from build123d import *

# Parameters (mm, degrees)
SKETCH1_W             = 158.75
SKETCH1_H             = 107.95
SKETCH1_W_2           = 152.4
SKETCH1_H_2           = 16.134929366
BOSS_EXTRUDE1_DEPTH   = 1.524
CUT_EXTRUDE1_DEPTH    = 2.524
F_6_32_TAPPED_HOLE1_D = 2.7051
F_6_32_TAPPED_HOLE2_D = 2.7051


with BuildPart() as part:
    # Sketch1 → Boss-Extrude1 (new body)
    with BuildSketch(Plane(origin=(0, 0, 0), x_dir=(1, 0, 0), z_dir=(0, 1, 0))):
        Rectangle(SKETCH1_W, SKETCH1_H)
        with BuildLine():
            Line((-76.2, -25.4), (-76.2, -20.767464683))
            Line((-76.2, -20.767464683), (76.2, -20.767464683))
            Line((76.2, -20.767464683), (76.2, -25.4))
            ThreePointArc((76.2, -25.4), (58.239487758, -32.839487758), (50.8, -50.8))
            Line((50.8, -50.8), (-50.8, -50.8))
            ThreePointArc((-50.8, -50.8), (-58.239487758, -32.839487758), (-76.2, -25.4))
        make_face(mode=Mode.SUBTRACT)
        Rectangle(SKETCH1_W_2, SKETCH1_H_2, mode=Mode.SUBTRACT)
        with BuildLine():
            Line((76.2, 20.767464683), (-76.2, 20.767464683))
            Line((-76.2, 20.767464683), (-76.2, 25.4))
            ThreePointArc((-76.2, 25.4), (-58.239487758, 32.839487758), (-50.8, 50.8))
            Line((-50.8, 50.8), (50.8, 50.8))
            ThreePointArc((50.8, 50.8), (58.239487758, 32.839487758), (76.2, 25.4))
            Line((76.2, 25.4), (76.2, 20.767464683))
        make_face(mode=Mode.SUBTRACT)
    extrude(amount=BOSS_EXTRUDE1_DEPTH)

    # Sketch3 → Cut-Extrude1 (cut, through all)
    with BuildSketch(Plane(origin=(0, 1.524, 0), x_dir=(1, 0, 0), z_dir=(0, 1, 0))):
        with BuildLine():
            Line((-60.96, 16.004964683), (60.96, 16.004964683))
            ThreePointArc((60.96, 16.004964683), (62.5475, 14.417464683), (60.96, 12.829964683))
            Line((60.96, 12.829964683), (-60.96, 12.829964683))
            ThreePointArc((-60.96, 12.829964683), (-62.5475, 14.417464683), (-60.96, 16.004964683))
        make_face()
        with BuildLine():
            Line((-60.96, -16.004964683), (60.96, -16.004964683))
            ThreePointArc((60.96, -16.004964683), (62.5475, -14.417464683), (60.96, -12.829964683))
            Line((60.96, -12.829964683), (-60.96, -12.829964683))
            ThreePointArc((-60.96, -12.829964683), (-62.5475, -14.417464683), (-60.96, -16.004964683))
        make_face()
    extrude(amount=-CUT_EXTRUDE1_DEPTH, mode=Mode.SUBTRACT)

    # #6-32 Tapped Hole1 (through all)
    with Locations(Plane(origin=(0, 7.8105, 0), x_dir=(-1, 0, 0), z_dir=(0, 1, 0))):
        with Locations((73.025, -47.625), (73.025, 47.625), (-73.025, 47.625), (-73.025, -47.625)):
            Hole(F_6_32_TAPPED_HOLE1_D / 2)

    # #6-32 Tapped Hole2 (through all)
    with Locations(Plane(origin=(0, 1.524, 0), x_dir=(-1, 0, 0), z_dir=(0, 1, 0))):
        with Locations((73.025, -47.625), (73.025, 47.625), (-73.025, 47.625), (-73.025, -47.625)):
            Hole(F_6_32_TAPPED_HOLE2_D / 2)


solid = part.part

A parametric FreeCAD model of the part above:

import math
import FreeCAD as App
import Part
import Sketcher
Q = App.Units.Quantity

doc = App.newDocument("Part")
body = doc.addObject("PartDesign::Body", "Body")

sketch1 = body.newObject("Sketcher::SketchObject", "Sketch")
sketch1.AttachmentSupport = (doc.getObject("XZ_Plane"), [""])
sketch1.MapMode = "FlatFace"
sketch1.addGeometry([
    Part.LineSegment(App.Vector(-79.4, -54, 0), App.Vector(-79.4, 54, 0)),
    Part.LineSegment(App.Vector(-79.4, 54, 0), App.Vector(79.4, 54, 0)),
    Part.LineSegment(App.Vector(79.4, 54, 0), App.Vector(79.4, -54, 0)),
    Part.LineSegment(App.Vector(79.4, -54, 0), App.Vector(-79.4, -54, 0)),
    Part.ArcOfCircle(Part.Circle(App.Vector(-76.2, 50.8, 0), App.Vector(0, 0, 1), 25.4), math.radians(-90), math.radians(0)),
    Part.LineSegment(App.Vector(-76.2, 25.4, 0), App.Vector(-76.2, 20.8, 0)),
    Part.LineSegment(App.Vector(-76.2, 20.8, 0), App.Vector(76.2, 20.8, 0)),
    Part.LineSegment(App.Vector(76.2, 20.8, 0), App.Vector(76.2, 25.4, 0)),
    Part.ArcOfCircle(Part.Circle(App.Vector(76.2, 50.8, 0), App.Vector(0, 0, 1), 25.4), math.radians(180), math.radians(270)),
    Part.LineSegment(App.Vector(50.8, 50.8, 0), App.Vector(-50.8, 50.8, 0)),
    Part.LineSegment(App.Vector(76.2, 8.1, 0), App.Vector(-76.2, 8.1, 0)),
    Part.LineSegment(App.Vector(-76.2, 8.1, 0), App.Vector(-76.2, -8.1, 0)),
    Part.LineSegment(App.Vector(-76.2, -8.1, 0), App.Vector(76.2, -8.1, 0)),
    Part.LineSegment(App.Vector(76.2, -8.1, 0), App.Vector(76.2, 8.1, 0)),
    Part.LineSegment(App.Vector(76.2, -25.4, 0), App.Vector(76.2, -20.8, 0)),
    Part.LineSegment(App.Vector(76.2, -20.8, 0), App.Vector(-76.2, -20.8, 0)),
    Part.LineSegment(App.Vector(-76.2, -20.8, 0), App.Vector(-76.2, -25.4, 0)),
    Part.ArcOfCircle(Part.Circle(App.Vector(-76.2, -50.8, 0), App.Vector(0, 0, 1), 25.4), math.radians(0), math.radians(90)),
    Part.LineSegment(App.Vector(-50.8, -50.8, 0), App.Vector(50.8, -50.8, 0)),
    Part.ArcOfCircle(Part.Circle(App.Vector(76.2, -50.8, 0), App.Vector(0, 0, 1), 25.4), math.radians(90), math.radians(180)),
], False)
sketch1.addConstraint([
    Sketcher.Constraint("Coincident", 0, 2, 1, 1),
    Sketcher.Constraint("Coincident", 1, 2, 2, 1),
    Sketcher.Constraint("Coincident", 2, 2, 3, 1),
    Sketcher.Constraint("Coincident", 3, 2, 0, 1),
    Sketcher.Constraint("Coincident", 4, 1, 5, 1),
    Sketcher.Constraint("Coincident", 5, 2, 6, 1),
    Sketcher.Constraint("Coincident", 6, 2, 7, 1),
    Sketcher.Constraint("Coincident", 7, 2, 8, 2),
    Sketcher.Constraint("Coincident", 8, 1, 9, 1),
    Sketcher.Constraint("Coincident", 9, 2, 4, 2),
    Sketcher.Constraint("Coincident", 10, 2, 11, 1),
    Sketcher.Constraint("Coincident", 11, 2, 12, 1),
    Sketcher.Constraint("Coincident", 12, 2, 13, 1),
    Sketcher.Constraint("Coincident", 13, 2, 10, 1),
    Sketcher.Constraint("Coincident", 14, 2, 15, 1),
    Sketcher.Constraint("Coincident", 15, 2, 16, 1),
    Sketcher.Constraint("Coincident", 16, 2, 17, 2),
    Sketcher.Constraint("Coincident", 17, 1, 18, 1),
    Sketcher.Constraint("Coincident", 18, 2, 19, 2),
    Sketcher.Constraint("Coincident", 19, 1, 14, 1),
    Sketcher.Constraint("Vertical", 0),
    Sketcher.Constraint("Horizontal", 1),
    Sketcher.Constraint("Vertical", 2),
    Sketcher.Constraint("Horizontal", 3),
    Sketcher.Constraint("Vertical", 5),
    Sketcher.Constraint("Horizontal", 6),
    Sketcher.Constraint("Vertical", 7),
    Sketcher.Constraint("Horizontal", 9),
    Sketcher.Constraint("Horizontal", 10),
    Sketcher.Constraint("Vertical", 11),
    Sketcher.Constraint("Horizontal", 12),
    Sketcher.Constraint("Vertical", 13),
    Sketcher.Constraint("Vertical", 14),
    Sketcher.Constraint("Horizontal", 15),
    Sketcher.Constraint("Vertical", 16),
    Sketcher.Constraint("Horizontal", 18),
    Sketcher.Constraint("Equal", 4, 8),
    Sketcher.Constraint("Equal", 8, 17),
    Sketcher.Constraint("Equal", 17, 19),
    Sketcher.Constraint("Symmetric", 8, 3, 17, 3, -1, 1),
    Sketcher.Constraint("Symmetric", 4, 3, 19, 3, -1, 1),
    Sketcher.Constraint("Symmetric", 0, 2, 2, 2, -1, 1),
    Sketcher.Constraint("Symmetric", 10, 2, 12, 2, -1, 1),
    Sketcher.Constraint("Symmetric", 5, 2, 14, 2, -1, 1),
    Sketcher.Constraint("Symmetric", 4, 3, 8, 3, -2),
    Sketcher.Constraint("Horizontal", 4, 3, 8, 1),
    Sketcher.Constraint("Horizontal", 19, 3, 17, 1),
    Sketcher.Constraint("Vertical", 17, 3, 4, 1),
    Sketcher.Constraint("Vertical", 19, 3, 6, 2),
    Sketcher.Constraint("Vertical", 5, 2, 10, 2),
    Sketcher.Constraint("Vertical", 11, 2, 15, 2),
    Sketcher.Constraint("Radius", 4, Q("1 in")),
    Sketcher.Constraint("DistanceX", 6, 1, 6, 2, Q("6 in")),
    Sketcher.Constraint("DistanceY", -1, 1, 4, 3, Q("2 in")),
    Sketcher.Constraint("DistanceX", 1, 1, 1, 2, Q("6.25 in")),
    Sketcher.Constraint("DistanceY", 0, 1, 0, 2, Q("4.25 in")),
    Sketcher.Constraint("DistanceY", 10, 2, 5, 2, Q("0.5 in")),
    Sketcher.Constraint("DistanceY", 11, 2, 11, 1, Q("16.134929 mm")),
])
pad1 = body.newObject("PartDesign::Pad", "Pad")
pad1.Profile = sketch1
pad1.Length = Q("0.06 in")
pad1.Reversed = True

sketch2 = body.newObject("Sketcher::SketchObject", "Sketch001")
sketch2.AttachmentSupport = (doc.getObject("XZ_Plane"), [""])
sketch2.MapMode = "FlatFace"
sketch2.AttachmentOffset = App.Placement(App.Vector(0, 0, -0.06 * 25.4), App.Rotation())
sketch2.addGeometry([
    Part.LineSegment(App.Vector(61, -16, 0), App.Vector(-61, -16, 0)),
    Part.ArcOfCircle(Part.Circle(App.Vector(-61, -14.4, 0), App.Vector(0, 0, 1), 1.6), math.radians(90), math.radians(270)),
    Part.LineSegment(App.Vector(-61, -12.8, 0), App.Vector(61, -12.8, 0)),
    Part.ArcOfCircle(Part.Circle(App.Vector(61, -14.4, 0), App.Vector(0, 0, 1), 1.6), math.radians(-90), math.radians(90)),
    Part.LineSegment(App.Vector(-61, 16, 0), App.Vector(61, 16, 0)),
    Part.ArcOfCircle(Part.Circle(App.Vector(61, 14.4, 0), App.Vector(0, 0, 1), 1.6), math.radians(-90), math.radians(90)),
    Part.LineSegment(App.Vector(61, 12.8, 0), App.Vector(-61, 12.8, 0)),
    Part.ArcOfCircle(Part.Circle(App.Vector(-61, 14.4, 0), App.Vector(0, 0, 1), 1.6), math.radians(90), math.radians(270)),
], False)
sketch2.addConstraint([
    Sketcher.Constraint("Tangent", 0, 2, 1, 2),
    Sketcher.Constraint("Tangent", 1, 1, 2, 1),
    Sketcher.Constraint("Tangent", 2, 2, 3, 2),
    Sketcher.Constraint("Tangent", 3, 1, 0, 1),
    Sketcher.Constraint("Tangent", 4, 2, 5, 2),
    Sketcher.Constraint("Tangent", 5, 1, 6, 1),
    Sketcher.Constraint("Tangent", 6, 2, 7, 2),
    Sketcher.Constraint("Tangent", 7, 1, 4, 1),
    Sketcher.Constraint("Horizontal", 0),
    Sketcher.Constraint("Horizontal", 2),
    Sketcher.Constraint("Horizontal", 4),
    Sketcher.Constraint("Horizontal", 6),
    Sketcher.Constraint("Equal", 3, 5),
    Sketcher.Constraint("Symmetric", 1, 3, 5, 3, -1, 1),
    Sketcher.Constraint("Vertical", 3, 3, 5, 3),
    Sketcher.Constraint("Vertical", 1, 3, 7, 3),
    Sketcher.Constraint("DistanceX", 0, 2, 0, 1, Q("4.8 in")),
    Sketcher.Constraint("Radius", 1, Q("0.0625 in")),
    Sketcher.Constraint("DistanceY", 3, 3, 5, 3, Q("28.834929 mm")),
])
pocket1 = body.newObject("PartDesign::Pocket", "Pocket")
pocket1.Profile = sketch2
pocket1.Type = "ThroughAll"
pocket1.Reversed = True

sketch3 = body.newObject("Sketcher::SketchObject", "Sketch002")
sketch3.AttachmentSupport = (doc.getObject("XZ_Plane"), [""])
sketch3.MapMode = "FlatFace"
sketch3.AttachmentOffset = App.Placement(App.Vector(0, 0, -0.3075 * 25.4), App.Rotation())
sketch3.addGeometry([
    Part.Circle(App.Vector(-73, -47.6, 0), App.Vector(0, 0, 1), 1.4),
    Part.Circle(App.Vector(-73, 47.6, 0), App.Vector(0, 0, 1), 1.4),
    Part.Circle(App.Vector(73, 47.6, 0), App.Vector(0, 0, 1), 1.4),
    Part.Circle(App.Vector(73, -47.6, 0), App.Vector(0, 0, 1), 1.4),
], False)
sketch3.addConstraint([
    Sketcher.Constraint("Equal", 0, 1),
    Sketcher.Constraint("Equal", 1, 2),
    Sketcher.Constraint("Equal", 2, 3),
    Sketcher.Constraint("Symmetric", 0, 3, 2, 3, -1, 1),
    Sketcher.Constraint("Symmetric", 1, 3, 3, 3, -1, 1),
    Sketcher.Constraint("Symmetric", 1, 3, 2, 3, -2),
    Sketcher.Constraint("Diameter", 0, Q("0.1065 in")),
    Sketcher.Constraint("DistanceY", 0, 3, 1, 3, Q("3.75 in")),
    Sketcher.Constraint("DistanceX", 1, 3, 2, 3, Q("5.75 in")),
])
doc.recompute()
hole = body.newObject("PartDesign::Hole", "Hole")
hole.Profile = sketch3
hole.ThreadType = "None"
hole.Diameter = Q("0.1065 in")
hole.DepthType = "ThroughAll"
hole.Reversed = True

sketch4 = body.newObject("Sketcher::SketchObject", "Sketch003")
sketch4.AttachmentSupport = (doc.getObject("XZ_Plane"), [""])
sketch4.MapMode = "FlatFace"
sketch4.AttachmentOffset = App.Placement(App.Vector(0, 0, -0.06 * 25.4), App.Rotation())
sketch4.addGeometry([
    Part.Circle(App.Vector(-73, -47.6, 0), App.Vector(0, 0, 1), 1.4),
    Part.Circle(App.Vector(-73, 47.6, 0), App.Vector(0, 0, 1), 1.4),
    Part.Circle(App.Vector(73, 47.6, 0), App.Vector(0, 0, 1), 1.4),
    Part.Circle(App.Vector(73, -47.6, 0), App.Vector(0, 0, 1), 1.4),
], False)
sketch4.addConstraint([
    Sketcher.Constraint("Equal", 0, 1),
    Sketcher.Constraint("Equal", 1, 2),
    Sketcher.Constraint("Equal", 2, 3),
    Sketcher.Constraint("Symmetric", 0, 3, 2, 3, -1, 1),
    Sketcher.Constraint("Symmetric", 1, 3, 3, 3, -1, 1),
    Sketcher.Constraint("Symmetric", 1, 3, 2, 3, -2),
    Sketcher.Constraint("Diameter", 0, Q("0.1065 in")),
    Sketcher.Constraint("DistanceY", 0, 3, 1, 3, Q("3.75 in")),
    Sketcher.Constraint("DistanceX", 1, 3, 2, 3, Q("5.75 in")),
])
doc.recompute()
hole2 = body.newObject("PartDesign::Hole", "Hole001")
hole2.Profile = sketch4
hole2.ThreadType = "None"
hole2.Diameter = Q("0.1065 in")
hole2.DepthType = "ThroughAll"
hole2.Reversed = True

doc.recompute()
